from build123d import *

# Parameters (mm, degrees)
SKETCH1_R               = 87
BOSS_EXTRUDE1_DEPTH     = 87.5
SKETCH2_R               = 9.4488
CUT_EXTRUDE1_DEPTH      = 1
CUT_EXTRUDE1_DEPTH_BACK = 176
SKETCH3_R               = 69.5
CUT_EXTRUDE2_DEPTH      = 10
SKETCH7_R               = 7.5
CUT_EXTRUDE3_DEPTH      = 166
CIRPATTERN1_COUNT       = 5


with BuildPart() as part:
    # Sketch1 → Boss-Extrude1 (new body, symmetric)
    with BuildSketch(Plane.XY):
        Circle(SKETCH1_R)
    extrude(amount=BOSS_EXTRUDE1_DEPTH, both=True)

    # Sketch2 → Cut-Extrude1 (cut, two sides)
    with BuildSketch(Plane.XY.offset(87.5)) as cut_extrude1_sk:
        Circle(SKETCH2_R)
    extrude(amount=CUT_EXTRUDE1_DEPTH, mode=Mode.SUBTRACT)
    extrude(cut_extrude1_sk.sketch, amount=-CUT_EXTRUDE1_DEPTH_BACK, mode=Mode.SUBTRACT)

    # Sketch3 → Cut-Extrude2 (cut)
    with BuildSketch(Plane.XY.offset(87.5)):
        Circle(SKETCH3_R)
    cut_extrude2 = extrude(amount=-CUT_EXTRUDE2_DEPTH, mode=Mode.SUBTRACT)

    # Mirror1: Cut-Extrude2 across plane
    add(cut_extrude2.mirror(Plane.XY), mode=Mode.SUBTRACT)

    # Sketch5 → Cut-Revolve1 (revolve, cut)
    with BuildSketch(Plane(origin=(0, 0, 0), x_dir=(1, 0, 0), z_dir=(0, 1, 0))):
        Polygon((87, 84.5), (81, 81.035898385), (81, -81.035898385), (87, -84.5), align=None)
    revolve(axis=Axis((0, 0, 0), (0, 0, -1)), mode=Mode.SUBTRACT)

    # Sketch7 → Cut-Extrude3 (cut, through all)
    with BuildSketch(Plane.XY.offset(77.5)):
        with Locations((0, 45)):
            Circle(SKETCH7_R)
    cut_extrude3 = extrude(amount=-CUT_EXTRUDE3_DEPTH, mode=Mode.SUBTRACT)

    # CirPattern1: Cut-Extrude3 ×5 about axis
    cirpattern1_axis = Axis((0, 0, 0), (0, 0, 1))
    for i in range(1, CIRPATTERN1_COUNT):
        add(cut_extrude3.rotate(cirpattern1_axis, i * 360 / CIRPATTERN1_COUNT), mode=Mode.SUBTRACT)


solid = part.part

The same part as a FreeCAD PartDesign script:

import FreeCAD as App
import Part
import Sketcher
from FreeCAD import Vector
Q = App.Units.Quantity


def add_polygon(sketch, points):
    """Adds a closed chain of lines whose ends are joined by coincident constraints."""
    first, n = sketch.GeometryCount, len(points)
    for a, b in zip(points, points[1:] + points[:1]):
        sketch.addGeometry(Part.LineSegment(App.Vector(*a, 0), App.Vector(*b, 0)), False)
    for i in range(n):
        sketch.addConstraint(Sketcher.Constraint("Coincident", first + i, 2, first + (i + 1) % n, 1))

doc = App.newDocument("Part")
body = doc.addObject("PartDesign::Body", "Body")

# Sketch on XY plane
sketch1 = body.newObject("Sketcher::SketchObject", "Sketch")
sketch1.AttachmentSupport = (doc.getObject("XY_Plane"), [""])
sketch1.MapMode = "FlatFace"
sketch1.addGeometry(Part.Circle(Vector(0, 0, 0), Vector(0, 0, 1), 87), False)
sketch1.addConstraint(Sketcher.Constraint("Coincident", 0, 3, -1, 1))
sketch1.addConstraint(Sketcher.Constraint("Diameter", 0, Q("174 mm")))
pad1 = body.newObject("PartDesign::Pad", "Pad")
pad1.Profile = sketch1
pad1.Length = 175
pad1.Midplane = True

# Sketch on XY plane
sketch2 = body.newObject("Sketcher::SketchObject", "Sketch001")
sketch2.AttachmentSupport = (doc.getObject("XY_Plane"), [""])
sketch2.MapMode = "FlatFace"
sketch2.AttachmentOffset = App.Placement(Vector(0, 0, 87.5), App.Rotation())
sketch2.addGeometry(Part.Circle(Vector(0, 0, 0), Vector(0, 0, 1), 9), False)
sketch2.addConstraint(Sketcher.Constraint("Coincident", 0, 3, -1, 1))
sketch2.addConstraint(Sketcher.Constraint("Diameter", 0, Q("18.8976 mm")))
pocket1 = body.newObject("PartDesign::Pocket", "Pocket")
pocket1.Profile = sketch2
pocket1.Type = "ThroughAll"
pocket1.Midplane = True

# Sketch on XY plane
sketch3 = body.newObject("Sketcher::SketchObject", "Sketch002")
sketch3.AttachmentSupport = (doc.getObject("XY_Plane"), [""])
sketch3.MapMode = "FlatFace"
sketch3.AttachmentOffset = App.Placement(Vector(0, 0, 87.5), App.Rotation())
sketch3.addGeometry(Part.Circle(Vector(0, 0, 0), Vector(0, 0, 1), 70), False)
sketch3.addConstraint(Sketcher.Constraint("Coincident", 0, 3, -1, 1))
sketch3.addConstraint(Sketcher.Constraint("Diameter", 0, Q("139 mm")))
pocket2 = body.newObject("PartDesign::Pocket", "Pocket001")
pocket2.Profile = sketch3
pocket2.Length = 10
doc.recompute()

mirrored = body.newObject("PartDesign::Mirrored", "Mirrored")
mirrored.Originals = [pocket2]
mirrored.MirrorPlane = (doc.getObject("XY_Plane"), [""])
body.Tip = mirrored

# Sketch on XZ plane
sketch4 = body.newObject("Sketcher::SketchObject", "Sketch003")
sketch4.AttachmentSupport = (doc.getObject("XZ_Plane"), [""])
sketch4.MapMode = "FlatFace"
add_polygon(sketch4, [(87, -84), (81, -81), (81, 81), (87, 84)])  # lines 0-3
sketch4.addConstraint(Sketcher.Constraint("Vertical", 1))
sketch4.addConstraint(Sketcher.Constraint("Vertical", 3))
sketch4.addConstraint(Sketcher.Constraint("Equal", 0, 2))
sketch4.addConstraint(Sketcher.Constraint("DistanceY", 3, 2, 3, 1, Q("169 mm")))
sketch4.addConstraint(Sketcher.Constraint("Angle", 0, Q("150 deg")))
sketch4.addConstraint(Sketcher.Constraint("DistanceX", -1, 1, 0, 2, Q("81 mm")))
sketch4.addConstraint(Sketcher.Constraint("DistanceX", -1, 1, 2, 2, Q("87 mm")))
sketch4.addConstraint(Sketcher.Constraint("DistanceY", -1, 1, 2, 2, Q("84.5 mm")))
groove = body.newObject("PartDesign::Groove", "Groove")
groove.Profile = sketch4
groove.ReferenceAxis = (sketch4, ["V_Axis"])
groove.Angle = 360

# Sketch on XY plane
sketch5 = body.newObject("Sketcher::SketchObject", "Sketch004")
sketch5.AttachmentSupport = (doc.getObject("XY_Plane"), [""])
sketch5.MapMode = "FlatFace"
sketch5.AttachmentOffset = App.Placement(Vector(0, 0, 77.5), App.Rotation())
sketch5.addGeometry(Part.Circle(Vector(0, 45, 0), Vector(0, 0, 1), 8), False)
sketch5.addConstraint(Sketcher.Constraint("PointOnObject", 0, 3, -2))
sketch5.addConstraint(Sketcher.Constraint("Diameter", 0, Q("15 mm")))
sketch5.addConstraint(Sketcher.Constraint("DistanceY", -1, 1, 0, 3, Q("45 mm")))
pocket3 = body.newObject("PartDesign::Pocket", "Pocket002")
pocket3.Profile = sketch5
pocket3.Type = "ThroughAll"
doc.recompute()

polarpattern = body.newObject("PartDesign::PolarPattern", "PolarPattern")
polarpattern.Originals = [pocket3]
polarpattern.Axis = (doc.getObject("Z_Axis"), [""])
polarpattern.Angle = 360
polarpattern.Occurrences = 5
body.Tip = polarpattern

doc.recompute()
